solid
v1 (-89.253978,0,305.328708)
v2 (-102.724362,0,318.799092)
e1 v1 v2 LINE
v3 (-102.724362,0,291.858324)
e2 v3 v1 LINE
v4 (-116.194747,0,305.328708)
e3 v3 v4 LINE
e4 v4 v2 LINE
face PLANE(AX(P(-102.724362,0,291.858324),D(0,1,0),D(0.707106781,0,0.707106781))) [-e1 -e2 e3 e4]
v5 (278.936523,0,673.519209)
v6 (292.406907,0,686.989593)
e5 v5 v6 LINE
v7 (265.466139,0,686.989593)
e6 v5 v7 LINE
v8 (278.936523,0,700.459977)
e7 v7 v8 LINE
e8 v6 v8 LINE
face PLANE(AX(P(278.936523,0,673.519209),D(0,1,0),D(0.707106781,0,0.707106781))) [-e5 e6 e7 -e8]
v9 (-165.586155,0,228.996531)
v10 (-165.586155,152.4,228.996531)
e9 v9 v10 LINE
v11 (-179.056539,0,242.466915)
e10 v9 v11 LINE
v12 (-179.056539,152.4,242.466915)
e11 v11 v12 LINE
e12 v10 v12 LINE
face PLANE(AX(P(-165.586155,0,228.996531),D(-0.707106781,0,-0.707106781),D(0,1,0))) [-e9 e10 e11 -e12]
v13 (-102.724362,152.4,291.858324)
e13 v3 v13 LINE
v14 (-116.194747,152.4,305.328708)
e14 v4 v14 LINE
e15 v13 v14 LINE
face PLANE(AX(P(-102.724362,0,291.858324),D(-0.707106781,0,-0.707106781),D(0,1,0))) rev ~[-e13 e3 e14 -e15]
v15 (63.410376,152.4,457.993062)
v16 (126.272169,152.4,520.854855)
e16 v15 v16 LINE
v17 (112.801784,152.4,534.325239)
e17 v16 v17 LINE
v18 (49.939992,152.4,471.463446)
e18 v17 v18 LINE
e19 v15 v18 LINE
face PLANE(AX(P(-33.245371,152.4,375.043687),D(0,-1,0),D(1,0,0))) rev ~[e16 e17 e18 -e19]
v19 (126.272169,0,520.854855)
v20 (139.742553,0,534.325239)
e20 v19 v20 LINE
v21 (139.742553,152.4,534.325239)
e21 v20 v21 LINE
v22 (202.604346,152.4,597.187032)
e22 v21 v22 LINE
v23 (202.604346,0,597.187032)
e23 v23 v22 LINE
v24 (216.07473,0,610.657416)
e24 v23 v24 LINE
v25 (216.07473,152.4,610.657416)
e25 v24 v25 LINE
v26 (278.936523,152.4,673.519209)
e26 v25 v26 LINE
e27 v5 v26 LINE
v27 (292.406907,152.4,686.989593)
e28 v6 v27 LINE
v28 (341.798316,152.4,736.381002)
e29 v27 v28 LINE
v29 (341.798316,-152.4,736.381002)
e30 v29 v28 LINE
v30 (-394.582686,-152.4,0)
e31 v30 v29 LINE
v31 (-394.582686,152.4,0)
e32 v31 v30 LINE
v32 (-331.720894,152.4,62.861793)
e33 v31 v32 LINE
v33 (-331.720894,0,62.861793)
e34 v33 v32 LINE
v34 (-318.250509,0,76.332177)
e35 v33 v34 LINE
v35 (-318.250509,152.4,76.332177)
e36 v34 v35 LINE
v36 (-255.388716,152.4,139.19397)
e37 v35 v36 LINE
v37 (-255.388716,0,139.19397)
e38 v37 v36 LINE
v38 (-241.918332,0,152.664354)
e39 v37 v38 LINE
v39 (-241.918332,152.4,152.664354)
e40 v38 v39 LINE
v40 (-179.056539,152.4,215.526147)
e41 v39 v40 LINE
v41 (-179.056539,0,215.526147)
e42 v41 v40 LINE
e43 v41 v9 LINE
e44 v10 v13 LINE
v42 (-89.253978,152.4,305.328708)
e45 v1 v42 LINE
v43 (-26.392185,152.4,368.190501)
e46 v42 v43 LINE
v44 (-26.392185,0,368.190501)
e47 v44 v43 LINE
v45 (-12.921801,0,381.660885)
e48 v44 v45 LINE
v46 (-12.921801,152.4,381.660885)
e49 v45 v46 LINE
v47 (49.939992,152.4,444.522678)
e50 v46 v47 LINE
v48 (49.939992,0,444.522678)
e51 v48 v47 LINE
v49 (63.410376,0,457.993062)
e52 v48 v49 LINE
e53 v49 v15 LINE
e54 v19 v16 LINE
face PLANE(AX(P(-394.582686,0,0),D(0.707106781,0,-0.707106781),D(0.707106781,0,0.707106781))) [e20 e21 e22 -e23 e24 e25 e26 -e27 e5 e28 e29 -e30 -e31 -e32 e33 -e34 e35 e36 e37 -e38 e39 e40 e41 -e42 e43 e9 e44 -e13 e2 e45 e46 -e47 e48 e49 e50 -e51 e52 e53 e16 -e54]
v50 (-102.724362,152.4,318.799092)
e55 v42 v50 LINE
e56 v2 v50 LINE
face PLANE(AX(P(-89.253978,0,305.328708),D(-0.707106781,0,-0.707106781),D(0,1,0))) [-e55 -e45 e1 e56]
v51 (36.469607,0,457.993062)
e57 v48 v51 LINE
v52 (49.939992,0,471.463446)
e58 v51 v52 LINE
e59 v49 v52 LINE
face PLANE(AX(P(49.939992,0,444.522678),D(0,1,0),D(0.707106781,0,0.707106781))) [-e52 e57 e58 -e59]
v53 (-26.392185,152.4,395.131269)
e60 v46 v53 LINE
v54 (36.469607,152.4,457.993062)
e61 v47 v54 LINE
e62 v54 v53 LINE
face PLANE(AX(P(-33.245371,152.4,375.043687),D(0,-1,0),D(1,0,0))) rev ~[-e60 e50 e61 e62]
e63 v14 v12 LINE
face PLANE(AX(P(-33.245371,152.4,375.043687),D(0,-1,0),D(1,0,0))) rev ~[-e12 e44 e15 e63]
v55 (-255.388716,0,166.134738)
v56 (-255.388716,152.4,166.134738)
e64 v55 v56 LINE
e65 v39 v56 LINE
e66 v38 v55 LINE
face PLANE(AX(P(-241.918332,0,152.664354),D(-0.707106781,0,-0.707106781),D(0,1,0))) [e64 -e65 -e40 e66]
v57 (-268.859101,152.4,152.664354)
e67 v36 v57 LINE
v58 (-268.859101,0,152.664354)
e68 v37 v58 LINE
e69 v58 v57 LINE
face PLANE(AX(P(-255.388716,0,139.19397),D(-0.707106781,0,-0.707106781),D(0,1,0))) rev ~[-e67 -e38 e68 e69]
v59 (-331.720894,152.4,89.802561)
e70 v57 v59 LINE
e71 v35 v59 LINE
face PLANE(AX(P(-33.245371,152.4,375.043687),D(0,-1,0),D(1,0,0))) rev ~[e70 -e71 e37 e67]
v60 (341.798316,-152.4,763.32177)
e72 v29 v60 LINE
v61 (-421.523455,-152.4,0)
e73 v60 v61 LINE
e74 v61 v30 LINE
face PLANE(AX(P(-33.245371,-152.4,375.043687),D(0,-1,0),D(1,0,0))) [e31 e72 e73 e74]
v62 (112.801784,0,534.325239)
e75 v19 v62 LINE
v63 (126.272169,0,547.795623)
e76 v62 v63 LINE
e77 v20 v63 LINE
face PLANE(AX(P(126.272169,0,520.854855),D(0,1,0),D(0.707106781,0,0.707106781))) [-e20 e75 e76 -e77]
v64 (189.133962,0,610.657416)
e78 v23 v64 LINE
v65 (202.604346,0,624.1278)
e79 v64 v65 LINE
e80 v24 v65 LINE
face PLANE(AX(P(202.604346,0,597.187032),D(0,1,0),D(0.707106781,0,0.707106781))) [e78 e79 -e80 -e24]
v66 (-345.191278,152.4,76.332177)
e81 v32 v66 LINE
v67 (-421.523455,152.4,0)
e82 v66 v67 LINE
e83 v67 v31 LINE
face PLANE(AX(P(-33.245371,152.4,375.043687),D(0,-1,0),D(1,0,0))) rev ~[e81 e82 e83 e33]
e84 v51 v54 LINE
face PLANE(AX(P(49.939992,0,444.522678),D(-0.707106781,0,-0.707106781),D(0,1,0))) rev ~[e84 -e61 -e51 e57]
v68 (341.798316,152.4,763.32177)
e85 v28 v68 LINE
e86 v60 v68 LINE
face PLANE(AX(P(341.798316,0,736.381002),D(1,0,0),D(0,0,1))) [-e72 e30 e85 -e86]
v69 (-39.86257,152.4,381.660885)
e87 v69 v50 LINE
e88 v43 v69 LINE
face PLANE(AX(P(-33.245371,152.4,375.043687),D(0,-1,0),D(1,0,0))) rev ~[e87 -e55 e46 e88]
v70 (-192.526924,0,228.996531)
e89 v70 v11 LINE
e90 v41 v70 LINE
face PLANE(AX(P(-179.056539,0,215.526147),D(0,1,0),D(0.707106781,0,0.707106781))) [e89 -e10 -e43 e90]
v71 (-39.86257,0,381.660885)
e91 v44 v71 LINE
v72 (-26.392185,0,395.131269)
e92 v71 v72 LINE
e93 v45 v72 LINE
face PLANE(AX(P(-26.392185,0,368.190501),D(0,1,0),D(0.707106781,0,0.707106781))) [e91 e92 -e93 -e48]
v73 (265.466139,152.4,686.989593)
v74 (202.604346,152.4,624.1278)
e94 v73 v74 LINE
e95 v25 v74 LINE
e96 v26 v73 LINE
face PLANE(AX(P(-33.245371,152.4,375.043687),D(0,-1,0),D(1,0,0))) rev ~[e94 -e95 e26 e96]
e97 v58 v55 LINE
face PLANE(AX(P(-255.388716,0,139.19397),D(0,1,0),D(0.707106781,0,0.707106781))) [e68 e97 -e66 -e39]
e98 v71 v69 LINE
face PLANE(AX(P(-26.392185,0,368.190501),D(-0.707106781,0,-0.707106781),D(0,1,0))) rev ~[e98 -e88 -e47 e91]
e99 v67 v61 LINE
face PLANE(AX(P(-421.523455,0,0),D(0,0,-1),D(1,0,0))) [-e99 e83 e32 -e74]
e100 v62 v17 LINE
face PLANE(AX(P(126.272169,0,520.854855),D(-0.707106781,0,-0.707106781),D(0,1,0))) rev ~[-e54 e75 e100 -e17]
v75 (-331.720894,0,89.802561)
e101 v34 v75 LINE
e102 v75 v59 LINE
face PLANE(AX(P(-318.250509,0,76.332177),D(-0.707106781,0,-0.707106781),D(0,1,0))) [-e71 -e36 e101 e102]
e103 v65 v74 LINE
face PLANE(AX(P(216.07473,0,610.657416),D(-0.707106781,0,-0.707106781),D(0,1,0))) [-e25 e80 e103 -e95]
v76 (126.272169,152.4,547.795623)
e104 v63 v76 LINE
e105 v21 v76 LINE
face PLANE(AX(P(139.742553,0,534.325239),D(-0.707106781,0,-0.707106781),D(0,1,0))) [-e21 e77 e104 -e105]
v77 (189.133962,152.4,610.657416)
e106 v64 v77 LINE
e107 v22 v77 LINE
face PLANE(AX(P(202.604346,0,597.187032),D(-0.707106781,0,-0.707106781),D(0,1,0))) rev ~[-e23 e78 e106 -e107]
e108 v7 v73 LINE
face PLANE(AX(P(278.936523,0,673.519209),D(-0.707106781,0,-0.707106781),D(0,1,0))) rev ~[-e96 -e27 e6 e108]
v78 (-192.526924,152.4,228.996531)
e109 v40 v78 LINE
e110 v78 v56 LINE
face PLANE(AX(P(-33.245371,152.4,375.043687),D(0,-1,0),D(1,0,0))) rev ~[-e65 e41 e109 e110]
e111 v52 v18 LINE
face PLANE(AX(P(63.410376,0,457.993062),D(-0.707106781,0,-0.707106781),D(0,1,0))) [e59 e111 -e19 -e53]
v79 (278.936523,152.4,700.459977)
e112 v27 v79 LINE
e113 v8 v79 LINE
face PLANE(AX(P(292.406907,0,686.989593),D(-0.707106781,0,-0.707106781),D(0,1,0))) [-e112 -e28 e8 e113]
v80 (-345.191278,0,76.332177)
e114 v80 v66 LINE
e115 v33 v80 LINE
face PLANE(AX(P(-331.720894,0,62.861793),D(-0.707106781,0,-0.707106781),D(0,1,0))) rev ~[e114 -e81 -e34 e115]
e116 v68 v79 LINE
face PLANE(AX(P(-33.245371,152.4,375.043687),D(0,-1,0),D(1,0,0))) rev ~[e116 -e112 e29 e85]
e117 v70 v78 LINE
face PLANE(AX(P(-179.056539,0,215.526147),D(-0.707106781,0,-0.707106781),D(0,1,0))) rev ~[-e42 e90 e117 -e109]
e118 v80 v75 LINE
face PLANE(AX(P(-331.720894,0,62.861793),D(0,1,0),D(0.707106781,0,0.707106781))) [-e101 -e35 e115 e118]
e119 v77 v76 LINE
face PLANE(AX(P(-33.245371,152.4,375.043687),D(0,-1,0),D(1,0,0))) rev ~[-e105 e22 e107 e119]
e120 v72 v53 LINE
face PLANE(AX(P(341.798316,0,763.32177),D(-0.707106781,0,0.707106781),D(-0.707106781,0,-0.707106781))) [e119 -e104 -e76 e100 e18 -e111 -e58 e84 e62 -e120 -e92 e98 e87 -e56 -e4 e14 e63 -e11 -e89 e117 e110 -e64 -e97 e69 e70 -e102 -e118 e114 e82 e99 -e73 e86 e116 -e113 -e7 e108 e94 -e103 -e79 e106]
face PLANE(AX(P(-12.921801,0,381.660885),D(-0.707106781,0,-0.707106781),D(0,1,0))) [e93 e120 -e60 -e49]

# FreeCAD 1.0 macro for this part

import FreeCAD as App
import Part
import Sketcher

V = App.Vector
Q = App.Units.Quantity


def add_polygon(sketch, points):
    """Adds a closed chain of lines whose ends are joined by coincident constraints."""
    first, n = sketch.GeometryCount, len(points)
    for a, b in zip(points, points[1:] + points[:1]):
        sketch.addGeometry(Part.LineSegment(App.Vector(*a, 0), App.Vector(*b, 0)), False)
    for i in range(n):
        sketch.addConstraint(Sketcher.Constraint("Coincident", first + i, 2, first + (i + 1) % n, 1))

doc = App.newDocument("Part")
body = doc.addObject("PartDesign::Body", "Body")

# Sketch on XZ plane
sketch1 = body.newObject("Sketcher::SketchObject", "Sketch")
sketch1.AttachmentSupport = (doc.getObject("XZ_Plane"), [""])
sketch1.MapMode = "FlatFace"
add_polygon(sketch1, [(342, 763), (-422, 0), (-395, 0), (342, 736)])  # lines 0-3
sketch1.addConstraint([
    Sketcher.Constraint("Horizontal", 1),
    Sketcher.Constraint("Vertical", 3),
    Sketcher.Constraint("PointOnObject", 0, 2, -1),
    Sketcher.Constraint("Parallel", 0, 2),
    Sketcher.Constraint("Equal", 1, 3),
    Sketcher.Constraint("Distance", 2, Q("41 in")),
    Sketcher.Constraint("Distance", 0, Q("42.5 in")),
    Sketcher.Constraint("DistanceX", 0, 2, -1, 1, 421.523455),
])
pad1 = body.newObject("PartDesign::Pad", "Pad")
pad1.Profile = sketch1
pad1.Length = Q("12 in")
pad1.Midplane = True

# Sketch on an angled plane
sketch2 = body.newObject("Sketcher::SketchObject", "Sketch001")
sketch2.Placement = App.Placement(V(-197.291343, 0, 197.291343), App.Rotation(V(0, 1, 0), V(0.707106781, 0, 0.707106781), V(0.707106781, 0, -0.707106781), "ZXY"))
add_polygon(sketch2, [(0, 693), (0, 673), (152, 673), (152, 693)])  # lines 0-3
add_polygon(sketch2, [(0, 585), (0, 566), (152, 566), (152, 585)])  # lines 4-7
add_polygon(sketch2, [(0, 477), (0, 458), (152, 458), (152, 477)])  # lines 8-11
add_polygon(sketch2, [(0, 369), (0, 350), (152, 350), (152, 369)])  # lines 12-15
add_polygon(sketch2, [(0, 261), (0, 242), (152, 242), (152, 261)])  # lines 16-19
add_polygon(sketch2, [(0, 153), (0, 134), (152, 134), (152, 153)])  # lines 20-23
add_polygon(sketch2, [(0, 45), (0, 26), (152, 26), (152, 45)])  # lines 24-27
add_polygon(sketch2, [(0, -63), (0, -82), (152, -82), (152, -63)])  # lines 28-31
add_polygon(sketch2, [(0, -171), (0, -190), (152, -190), (152, -171)])  # lines 32-35
sketch2.addConstraint([
    Sketcher.Constraint("Vertical", 0),
    Sketcher.Constraint("Horizontal", 1),
    Sketcher.Constraint("Vertical", 2),
    Sketcher.Constraint("Horizontal", 3),
    Sketcher.Constraint("Vertical", 4),
    Sketcher.Constraint("Horizontal", 5),
    Sketcher.Constraint("Vertical", 6),
    Sketcher.Constraint("Horizontal", 7),
    Sketcher.Constraint("Vertical", 8),
    Sketcher.Constraint("Horizontal", 9),
    Sketcher.Constraint("Vertical", 10),
    Sketcher.Constraint("Horizontal", 11),
    Sketcher.Constraint("Vertical", 12),
    Sketcher.Constraint("Horizontal", 13),
    Sketcher.Constraint("Vertical", 14),
    Sketcher.Constraint("Horizontal", 15),
    Sketcher.Constraint("Vertical", 16),
    Sketcher.Constraint("Horizontal", 17),
    Sketcher.Constraint("Vertical", 18),
    Sketcher.Constraint("Horizontal", 19),
    Sketcher.Constraint("Vertical", 20),
    Sketcher.Constraint("Horizontal", 21),
    Sketcher.Constraint("Vertical", 22),
    Sketcher.Constraint("Horizontal", 23),
    Sketcher.Constraint("Vertical", 24),
    Sketcher.Constraint("Horizontal", 25),
    Sketcher.Constraint("Vertical", 26),
    Sketcher.Constraint("Horizontal", 27),
    Sketcher.Constraint("Vertical", 28),
    Sketcher.Constraint("Horizontal", 29),
    Sketcher.Constraint("Vertical", 30),
    Sketcher.Constraint("Horizontal", 31),
    Sketcher.Constraint("Vertical", 32),
    Sketcher.Constraint("Horizontal", 33),
    Sketcher.Constraint("Vertical", 34),
    Sketcher.Constraint("Horizontal", 35),
    Sketcher.Constraint("PointOnObject", 0, 2, -2),
    Sketcher.Constraint("PointOnObject", 4, 2, -2),
    Sketcher.Constraint("PointOnObject", 8, 2, -2),
    Sketcher.Constraint("PointOnObject", 12, 2, -2),
    Sketcher.Constraint("PointOnObject", 16, 2, -2),
    Sketcher.Constraint("PointOnObject", 20, 2, -2),
    Sketcher.Constraint("PointOnObject", 24, 2, -2),
    Sketcher.Constraint("PointOnObject", 28, 2, -2),
    Sketcher.Constraint("PointOnObject", 32, 2, -2),
    Sketcher.Constraint("Vertical", 2, 2, 5, 2),
    Sketcher.Constraint("Vertical", 6, 2, 9, 2),
    Sketcher.Constraint("Vertical", 10, 2, 13, 2),
    Sketcher.Constraint("Vertical", 14, 2, 17, 2),
    Sketcher.Constraint("Vertical", 18, 2, 21, 2),
    Sketcher.Constraint("Vertical", 22, 2, 25, 2),
    Sketcher.Constraint("Vertical", 26, 2, 29, 2),
    Sketcher.Constraint("Vertical", 30, 2, 33, 2),
    Sketcher.Constraint("Equal", 2, 4),
    Sketcher.Constraint("Equal", 6, 8),
    Sketcher.Constraint("Equal", 10, 12),
    Sketcher.Constraint("Equal", 14, 16),
    Sketcher.Constraint("Equal", 18, 20),
    Sketcher.Constraint("Equal", 22, 24),
    Sketcher.Constraint("Equal", 26, 28),
    Sketcher.Constraint("Equal", 30, 32),
    Sketcher.Constraint("DistanceX", 1, 1, 1, 2, Q("6 in")),
    Sketcher.Constraint("DistanceY", 4, 2, 3, 2, Q("5 in")),
    Sketcher.Constraint("DistanceY", 8, 2, 7, 2, Q("5 in")),
    Sketcher.Constraint("DistanceY", 12, 2, 11, 2, Q("5 in")),
    Sketcher.Constraint("DistanceY", 16, 2, 15, 2, Q("5 in")),
    Sketcher.Constraint("DistanceY", 20, 2, 19, 2, Q("5 in")),
    Sketcher.Constraint("DistanceY", 24, 2, 23, 2, Q("5 in")),
    Sketcher.Constraint("DistanceY", 28, 2, 27, 2, Q("5 in")),
    Sketcher.Constraint("DistanceY", 32, 2, 31, 2, Q("5 in")),
    Sketcher.Constraint("DistanceY", 0, 2, 0, 1, Q("0.75 in")),
    Sketcher.Constraint("DistanceY", -1, 1, 0, 2, 673.487906),
])
pocket1 = body.newObject("PartDesign::Pocket", "Pocket")
pocket1.Profile = sketch2
pocket1.Length = Q("0.75 in")

doc.recompute()
